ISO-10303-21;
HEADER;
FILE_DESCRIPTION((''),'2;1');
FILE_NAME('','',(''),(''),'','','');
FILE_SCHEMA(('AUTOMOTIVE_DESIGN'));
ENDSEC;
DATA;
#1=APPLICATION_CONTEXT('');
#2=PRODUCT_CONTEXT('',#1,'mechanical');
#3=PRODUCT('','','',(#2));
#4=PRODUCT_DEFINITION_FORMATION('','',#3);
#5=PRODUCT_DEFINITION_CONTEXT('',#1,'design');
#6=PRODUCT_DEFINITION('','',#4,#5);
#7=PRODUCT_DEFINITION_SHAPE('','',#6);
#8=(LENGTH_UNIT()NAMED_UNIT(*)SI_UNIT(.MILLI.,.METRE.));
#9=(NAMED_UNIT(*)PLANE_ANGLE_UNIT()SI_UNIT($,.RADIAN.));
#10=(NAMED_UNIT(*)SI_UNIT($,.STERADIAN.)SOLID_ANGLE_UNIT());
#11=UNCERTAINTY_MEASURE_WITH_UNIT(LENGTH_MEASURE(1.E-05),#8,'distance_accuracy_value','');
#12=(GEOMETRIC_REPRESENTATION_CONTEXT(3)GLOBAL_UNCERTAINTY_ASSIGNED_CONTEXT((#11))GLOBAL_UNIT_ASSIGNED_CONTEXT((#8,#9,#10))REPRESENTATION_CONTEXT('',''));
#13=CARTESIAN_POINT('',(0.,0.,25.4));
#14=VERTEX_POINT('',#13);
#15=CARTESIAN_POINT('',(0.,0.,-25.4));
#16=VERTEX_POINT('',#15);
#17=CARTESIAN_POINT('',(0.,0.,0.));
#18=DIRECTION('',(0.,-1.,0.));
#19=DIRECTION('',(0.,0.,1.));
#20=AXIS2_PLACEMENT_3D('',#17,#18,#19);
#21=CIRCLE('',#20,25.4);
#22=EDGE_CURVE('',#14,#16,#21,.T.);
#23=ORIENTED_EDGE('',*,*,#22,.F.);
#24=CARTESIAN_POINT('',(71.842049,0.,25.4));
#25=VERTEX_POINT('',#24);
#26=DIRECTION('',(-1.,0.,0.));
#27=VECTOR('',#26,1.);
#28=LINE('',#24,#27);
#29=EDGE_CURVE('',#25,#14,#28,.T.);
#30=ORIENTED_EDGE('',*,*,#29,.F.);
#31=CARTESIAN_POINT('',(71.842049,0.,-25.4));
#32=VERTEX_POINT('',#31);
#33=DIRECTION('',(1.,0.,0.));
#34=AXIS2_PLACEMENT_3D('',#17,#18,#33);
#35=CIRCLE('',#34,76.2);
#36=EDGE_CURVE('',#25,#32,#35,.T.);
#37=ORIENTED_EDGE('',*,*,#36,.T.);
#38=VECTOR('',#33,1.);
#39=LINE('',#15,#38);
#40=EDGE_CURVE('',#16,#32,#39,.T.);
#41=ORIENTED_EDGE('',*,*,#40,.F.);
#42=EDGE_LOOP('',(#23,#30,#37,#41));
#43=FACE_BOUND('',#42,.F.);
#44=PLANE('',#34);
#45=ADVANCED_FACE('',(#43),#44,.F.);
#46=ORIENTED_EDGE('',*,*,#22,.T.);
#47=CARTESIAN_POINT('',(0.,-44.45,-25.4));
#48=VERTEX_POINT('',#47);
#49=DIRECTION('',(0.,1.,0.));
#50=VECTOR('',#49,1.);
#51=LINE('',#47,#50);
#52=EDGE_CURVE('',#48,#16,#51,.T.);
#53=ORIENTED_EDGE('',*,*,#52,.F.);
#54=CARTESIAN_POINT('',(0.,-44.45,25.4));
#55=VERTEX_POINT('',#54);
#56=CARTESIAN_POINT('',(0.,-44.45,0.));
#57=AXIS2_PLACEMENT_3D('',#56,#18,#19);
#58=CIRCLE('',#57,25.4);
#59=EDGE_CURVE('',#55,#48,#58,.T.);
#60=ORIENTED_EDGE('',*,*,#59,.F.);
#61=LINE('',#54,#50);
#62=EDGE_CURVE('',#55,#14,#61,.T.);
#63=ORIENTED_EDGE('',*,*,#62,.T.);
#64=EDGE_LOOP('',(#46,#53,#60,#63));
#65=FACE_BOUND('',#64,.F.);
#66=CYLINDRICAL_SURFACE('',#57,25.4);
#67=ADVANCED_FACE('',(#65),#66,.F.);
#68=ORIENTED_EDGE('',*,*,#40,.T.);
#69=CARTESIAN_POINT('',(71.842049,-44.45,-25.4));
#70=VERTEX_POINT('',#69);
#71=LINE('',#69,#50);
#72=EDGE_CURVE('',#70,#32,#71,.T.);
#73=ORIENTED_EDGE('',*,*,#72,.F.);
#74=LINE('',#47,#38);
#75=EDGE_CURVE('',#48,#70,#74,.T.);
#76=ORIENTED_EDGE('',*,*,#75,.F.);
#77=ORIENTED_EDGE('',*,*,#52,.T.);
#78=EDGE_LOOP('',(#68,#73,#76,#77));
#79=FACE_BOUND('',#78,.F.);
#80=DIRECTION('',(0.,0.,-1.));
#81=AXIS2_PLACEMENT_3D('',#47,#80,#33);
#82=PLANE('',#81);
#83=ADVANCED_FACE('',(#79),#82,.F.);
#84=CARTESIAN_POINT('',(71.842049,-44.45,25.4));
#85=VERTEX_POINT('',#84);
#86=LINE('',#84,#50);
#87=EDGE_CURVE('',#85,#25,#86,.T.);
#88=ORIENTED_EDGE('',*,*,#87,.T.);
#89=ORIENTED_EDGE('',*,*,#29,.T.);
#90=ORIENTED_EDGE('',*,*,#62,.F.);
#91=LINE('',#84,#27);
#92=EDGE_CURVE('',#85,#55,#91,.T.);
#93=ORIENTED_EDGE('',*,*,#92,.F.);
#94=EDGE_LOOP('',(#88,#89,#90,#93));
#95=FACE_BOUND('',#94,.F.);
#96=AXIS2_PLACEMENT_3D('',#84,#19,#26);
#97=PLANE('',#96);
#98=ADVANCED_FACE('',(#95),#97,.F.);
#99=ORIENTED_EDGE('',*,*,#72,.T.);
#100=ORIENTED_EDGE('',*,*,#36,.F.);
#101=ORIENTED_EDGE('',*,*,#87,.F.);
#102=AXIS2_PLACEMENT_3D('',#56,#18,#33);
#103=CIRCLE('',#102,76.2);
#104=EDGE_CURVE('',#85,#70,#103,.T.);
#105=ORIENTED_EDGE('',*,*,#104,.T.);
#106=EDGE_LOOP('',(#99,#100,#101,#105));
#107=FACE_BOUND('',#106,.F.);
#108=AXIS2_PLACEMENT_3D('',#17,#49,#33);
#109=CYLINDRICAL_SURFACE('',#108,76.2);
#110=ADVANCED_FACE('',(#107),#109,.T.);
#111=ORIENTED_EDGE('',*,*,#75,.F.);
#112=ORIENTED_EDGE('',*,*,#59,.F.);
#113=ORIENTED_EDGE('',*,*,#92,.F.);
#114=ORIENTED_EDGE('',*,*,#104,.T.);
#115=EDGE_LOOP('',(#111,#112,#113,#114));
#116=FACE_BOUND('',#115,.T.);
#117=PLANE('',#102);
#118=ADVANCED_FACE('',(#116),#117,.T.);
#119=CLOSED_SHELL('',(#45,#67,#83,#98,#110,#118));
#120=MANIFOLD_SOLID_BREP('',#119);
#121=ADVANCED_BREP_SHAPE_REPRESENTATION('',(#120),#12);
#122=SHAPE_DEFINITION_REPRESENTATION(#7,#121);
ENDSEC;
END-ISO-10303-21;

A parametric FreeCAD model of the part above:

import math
import FreeCAD as App
import Part
import Sketcher
from FreeCAD import Vector
Q = App.Units.Quantity

doc = App.newDocument("Part")
body = doc.addObject("PartDesign::Body", "Body")

# Sketch on XZ plane
sketch1 = body.newObject("Sketcher::SketchObject", "Sketch")
sketch1.AttachmentSupport = (doc.getObject("XZ_Plane"), [""])
sketch1.MapMode = "FlatFace"
sketch1.addGeometry(Part.Circle(Vector(0, 0, 0), Vector(0, 0, 1), 76), False)
sketch1.addConstraint(Sketcher.Constraint("Coincident", 0, 3, -1, 1))
sketch1.addConstraint(Sketcher.Constraint("Diameter", 0, Q("6 in")))
pad1 = body.newObject("PartDesign::Pad", "Pad")
pad1.Profile = sketch1
pad1.Length = Q("1.75 in")

# Sketch on XZ plane
sketch2 = body.newObject("Sketcher::SketchObject", "Sketch001")
sketch2.AttachmentSupport = (doc.getObject("XZ_Plane"), [""])
sketch2.MapMode = "FlatFace"
sketch2.AttachmentOffset = App.Placement(Vector(0, 0, 1.75 * 25.4), App.Rotation())
sketch2.addGeometry(Part.LineSegment(Vector(72, 25, 0), Vector(0, 25, 0)), False)
sketch2.addGeometry(Part.ArcOfCircle(Part.Circle(Vector(0, 0, 0), Vector(0, 0, 1), 25), math.radians(90), math.radians(270)), False)
sketch2.addGeometry(Part.LineSegment(Vector(0, -25, 0), Vector(72, -25, 0)), False)
sketch2.addGeometry(Part.ArcOfCircle(Part.Circle(Vector(0, 0, 0), Vector(0, 0, 1), 76), math.radians(-19.47), math.radians(0)), False)
sketch2.addGeometry(Part.ArcOfCircle(Part.Circle(Vector(0, 0, 0), Vector(0, 0, 1), 76), math.radians(0), math.radians(19.47)), False)
sketch2.addConstraint(Sketcher.Constraint("Tangent", 0, 2, 1, 1))
sketch2.addConstraint(Sketcher.Constraint("Tangent", 1, 2, 2, 1))
sketch2.addConstraint(Sketcher.Constraint("Coincident", 2, 2, 3, 1))
sketch2.addConstraint(Sketcher.Constraint("Tangent", 3, 2, 4, 1))
sketch2.addConstraint(Sketcher.Constraint("Coincident", 4, 2, 0, 1))
sketch2.addConstraint(Sketcher.Constraint("Horizontal", 0))
sketch2.addConstraint(Sketcher.Constraint("Horizontal", 2))
sketch2.addConstraint(Sketcher.Constraint("Coincident", 1, 3, -1, 1))
sketch2.addConstraint(Sketcher.Constraint("Equal", 3, 4))
sketch2.addConstraint(Sketcher.Constraint("PointOnObject", 3, 2, -1))
sketch2.addConstraint(Sketcher.Constraint("Vertical", 2, 2, 4, 2))
sketch2.addConstraint(Sketcher.Constraint("Radius", 1, Q("1 in")))
sketch2.addConstraint(Sketcher.Constraint("DistanceX", -1, 1, 3, 2, Q("3 in")))
sketch2.addConstraint(Sketcher.Constraint("Radius", 3, Q("76.200015 mm")))
pocket1 = body.newObject("PartDesign::Pocket", "Pocket")
pocket1.Profile = sketch2
pocket1.Type = "ThroughAll"

doc.recompute()
